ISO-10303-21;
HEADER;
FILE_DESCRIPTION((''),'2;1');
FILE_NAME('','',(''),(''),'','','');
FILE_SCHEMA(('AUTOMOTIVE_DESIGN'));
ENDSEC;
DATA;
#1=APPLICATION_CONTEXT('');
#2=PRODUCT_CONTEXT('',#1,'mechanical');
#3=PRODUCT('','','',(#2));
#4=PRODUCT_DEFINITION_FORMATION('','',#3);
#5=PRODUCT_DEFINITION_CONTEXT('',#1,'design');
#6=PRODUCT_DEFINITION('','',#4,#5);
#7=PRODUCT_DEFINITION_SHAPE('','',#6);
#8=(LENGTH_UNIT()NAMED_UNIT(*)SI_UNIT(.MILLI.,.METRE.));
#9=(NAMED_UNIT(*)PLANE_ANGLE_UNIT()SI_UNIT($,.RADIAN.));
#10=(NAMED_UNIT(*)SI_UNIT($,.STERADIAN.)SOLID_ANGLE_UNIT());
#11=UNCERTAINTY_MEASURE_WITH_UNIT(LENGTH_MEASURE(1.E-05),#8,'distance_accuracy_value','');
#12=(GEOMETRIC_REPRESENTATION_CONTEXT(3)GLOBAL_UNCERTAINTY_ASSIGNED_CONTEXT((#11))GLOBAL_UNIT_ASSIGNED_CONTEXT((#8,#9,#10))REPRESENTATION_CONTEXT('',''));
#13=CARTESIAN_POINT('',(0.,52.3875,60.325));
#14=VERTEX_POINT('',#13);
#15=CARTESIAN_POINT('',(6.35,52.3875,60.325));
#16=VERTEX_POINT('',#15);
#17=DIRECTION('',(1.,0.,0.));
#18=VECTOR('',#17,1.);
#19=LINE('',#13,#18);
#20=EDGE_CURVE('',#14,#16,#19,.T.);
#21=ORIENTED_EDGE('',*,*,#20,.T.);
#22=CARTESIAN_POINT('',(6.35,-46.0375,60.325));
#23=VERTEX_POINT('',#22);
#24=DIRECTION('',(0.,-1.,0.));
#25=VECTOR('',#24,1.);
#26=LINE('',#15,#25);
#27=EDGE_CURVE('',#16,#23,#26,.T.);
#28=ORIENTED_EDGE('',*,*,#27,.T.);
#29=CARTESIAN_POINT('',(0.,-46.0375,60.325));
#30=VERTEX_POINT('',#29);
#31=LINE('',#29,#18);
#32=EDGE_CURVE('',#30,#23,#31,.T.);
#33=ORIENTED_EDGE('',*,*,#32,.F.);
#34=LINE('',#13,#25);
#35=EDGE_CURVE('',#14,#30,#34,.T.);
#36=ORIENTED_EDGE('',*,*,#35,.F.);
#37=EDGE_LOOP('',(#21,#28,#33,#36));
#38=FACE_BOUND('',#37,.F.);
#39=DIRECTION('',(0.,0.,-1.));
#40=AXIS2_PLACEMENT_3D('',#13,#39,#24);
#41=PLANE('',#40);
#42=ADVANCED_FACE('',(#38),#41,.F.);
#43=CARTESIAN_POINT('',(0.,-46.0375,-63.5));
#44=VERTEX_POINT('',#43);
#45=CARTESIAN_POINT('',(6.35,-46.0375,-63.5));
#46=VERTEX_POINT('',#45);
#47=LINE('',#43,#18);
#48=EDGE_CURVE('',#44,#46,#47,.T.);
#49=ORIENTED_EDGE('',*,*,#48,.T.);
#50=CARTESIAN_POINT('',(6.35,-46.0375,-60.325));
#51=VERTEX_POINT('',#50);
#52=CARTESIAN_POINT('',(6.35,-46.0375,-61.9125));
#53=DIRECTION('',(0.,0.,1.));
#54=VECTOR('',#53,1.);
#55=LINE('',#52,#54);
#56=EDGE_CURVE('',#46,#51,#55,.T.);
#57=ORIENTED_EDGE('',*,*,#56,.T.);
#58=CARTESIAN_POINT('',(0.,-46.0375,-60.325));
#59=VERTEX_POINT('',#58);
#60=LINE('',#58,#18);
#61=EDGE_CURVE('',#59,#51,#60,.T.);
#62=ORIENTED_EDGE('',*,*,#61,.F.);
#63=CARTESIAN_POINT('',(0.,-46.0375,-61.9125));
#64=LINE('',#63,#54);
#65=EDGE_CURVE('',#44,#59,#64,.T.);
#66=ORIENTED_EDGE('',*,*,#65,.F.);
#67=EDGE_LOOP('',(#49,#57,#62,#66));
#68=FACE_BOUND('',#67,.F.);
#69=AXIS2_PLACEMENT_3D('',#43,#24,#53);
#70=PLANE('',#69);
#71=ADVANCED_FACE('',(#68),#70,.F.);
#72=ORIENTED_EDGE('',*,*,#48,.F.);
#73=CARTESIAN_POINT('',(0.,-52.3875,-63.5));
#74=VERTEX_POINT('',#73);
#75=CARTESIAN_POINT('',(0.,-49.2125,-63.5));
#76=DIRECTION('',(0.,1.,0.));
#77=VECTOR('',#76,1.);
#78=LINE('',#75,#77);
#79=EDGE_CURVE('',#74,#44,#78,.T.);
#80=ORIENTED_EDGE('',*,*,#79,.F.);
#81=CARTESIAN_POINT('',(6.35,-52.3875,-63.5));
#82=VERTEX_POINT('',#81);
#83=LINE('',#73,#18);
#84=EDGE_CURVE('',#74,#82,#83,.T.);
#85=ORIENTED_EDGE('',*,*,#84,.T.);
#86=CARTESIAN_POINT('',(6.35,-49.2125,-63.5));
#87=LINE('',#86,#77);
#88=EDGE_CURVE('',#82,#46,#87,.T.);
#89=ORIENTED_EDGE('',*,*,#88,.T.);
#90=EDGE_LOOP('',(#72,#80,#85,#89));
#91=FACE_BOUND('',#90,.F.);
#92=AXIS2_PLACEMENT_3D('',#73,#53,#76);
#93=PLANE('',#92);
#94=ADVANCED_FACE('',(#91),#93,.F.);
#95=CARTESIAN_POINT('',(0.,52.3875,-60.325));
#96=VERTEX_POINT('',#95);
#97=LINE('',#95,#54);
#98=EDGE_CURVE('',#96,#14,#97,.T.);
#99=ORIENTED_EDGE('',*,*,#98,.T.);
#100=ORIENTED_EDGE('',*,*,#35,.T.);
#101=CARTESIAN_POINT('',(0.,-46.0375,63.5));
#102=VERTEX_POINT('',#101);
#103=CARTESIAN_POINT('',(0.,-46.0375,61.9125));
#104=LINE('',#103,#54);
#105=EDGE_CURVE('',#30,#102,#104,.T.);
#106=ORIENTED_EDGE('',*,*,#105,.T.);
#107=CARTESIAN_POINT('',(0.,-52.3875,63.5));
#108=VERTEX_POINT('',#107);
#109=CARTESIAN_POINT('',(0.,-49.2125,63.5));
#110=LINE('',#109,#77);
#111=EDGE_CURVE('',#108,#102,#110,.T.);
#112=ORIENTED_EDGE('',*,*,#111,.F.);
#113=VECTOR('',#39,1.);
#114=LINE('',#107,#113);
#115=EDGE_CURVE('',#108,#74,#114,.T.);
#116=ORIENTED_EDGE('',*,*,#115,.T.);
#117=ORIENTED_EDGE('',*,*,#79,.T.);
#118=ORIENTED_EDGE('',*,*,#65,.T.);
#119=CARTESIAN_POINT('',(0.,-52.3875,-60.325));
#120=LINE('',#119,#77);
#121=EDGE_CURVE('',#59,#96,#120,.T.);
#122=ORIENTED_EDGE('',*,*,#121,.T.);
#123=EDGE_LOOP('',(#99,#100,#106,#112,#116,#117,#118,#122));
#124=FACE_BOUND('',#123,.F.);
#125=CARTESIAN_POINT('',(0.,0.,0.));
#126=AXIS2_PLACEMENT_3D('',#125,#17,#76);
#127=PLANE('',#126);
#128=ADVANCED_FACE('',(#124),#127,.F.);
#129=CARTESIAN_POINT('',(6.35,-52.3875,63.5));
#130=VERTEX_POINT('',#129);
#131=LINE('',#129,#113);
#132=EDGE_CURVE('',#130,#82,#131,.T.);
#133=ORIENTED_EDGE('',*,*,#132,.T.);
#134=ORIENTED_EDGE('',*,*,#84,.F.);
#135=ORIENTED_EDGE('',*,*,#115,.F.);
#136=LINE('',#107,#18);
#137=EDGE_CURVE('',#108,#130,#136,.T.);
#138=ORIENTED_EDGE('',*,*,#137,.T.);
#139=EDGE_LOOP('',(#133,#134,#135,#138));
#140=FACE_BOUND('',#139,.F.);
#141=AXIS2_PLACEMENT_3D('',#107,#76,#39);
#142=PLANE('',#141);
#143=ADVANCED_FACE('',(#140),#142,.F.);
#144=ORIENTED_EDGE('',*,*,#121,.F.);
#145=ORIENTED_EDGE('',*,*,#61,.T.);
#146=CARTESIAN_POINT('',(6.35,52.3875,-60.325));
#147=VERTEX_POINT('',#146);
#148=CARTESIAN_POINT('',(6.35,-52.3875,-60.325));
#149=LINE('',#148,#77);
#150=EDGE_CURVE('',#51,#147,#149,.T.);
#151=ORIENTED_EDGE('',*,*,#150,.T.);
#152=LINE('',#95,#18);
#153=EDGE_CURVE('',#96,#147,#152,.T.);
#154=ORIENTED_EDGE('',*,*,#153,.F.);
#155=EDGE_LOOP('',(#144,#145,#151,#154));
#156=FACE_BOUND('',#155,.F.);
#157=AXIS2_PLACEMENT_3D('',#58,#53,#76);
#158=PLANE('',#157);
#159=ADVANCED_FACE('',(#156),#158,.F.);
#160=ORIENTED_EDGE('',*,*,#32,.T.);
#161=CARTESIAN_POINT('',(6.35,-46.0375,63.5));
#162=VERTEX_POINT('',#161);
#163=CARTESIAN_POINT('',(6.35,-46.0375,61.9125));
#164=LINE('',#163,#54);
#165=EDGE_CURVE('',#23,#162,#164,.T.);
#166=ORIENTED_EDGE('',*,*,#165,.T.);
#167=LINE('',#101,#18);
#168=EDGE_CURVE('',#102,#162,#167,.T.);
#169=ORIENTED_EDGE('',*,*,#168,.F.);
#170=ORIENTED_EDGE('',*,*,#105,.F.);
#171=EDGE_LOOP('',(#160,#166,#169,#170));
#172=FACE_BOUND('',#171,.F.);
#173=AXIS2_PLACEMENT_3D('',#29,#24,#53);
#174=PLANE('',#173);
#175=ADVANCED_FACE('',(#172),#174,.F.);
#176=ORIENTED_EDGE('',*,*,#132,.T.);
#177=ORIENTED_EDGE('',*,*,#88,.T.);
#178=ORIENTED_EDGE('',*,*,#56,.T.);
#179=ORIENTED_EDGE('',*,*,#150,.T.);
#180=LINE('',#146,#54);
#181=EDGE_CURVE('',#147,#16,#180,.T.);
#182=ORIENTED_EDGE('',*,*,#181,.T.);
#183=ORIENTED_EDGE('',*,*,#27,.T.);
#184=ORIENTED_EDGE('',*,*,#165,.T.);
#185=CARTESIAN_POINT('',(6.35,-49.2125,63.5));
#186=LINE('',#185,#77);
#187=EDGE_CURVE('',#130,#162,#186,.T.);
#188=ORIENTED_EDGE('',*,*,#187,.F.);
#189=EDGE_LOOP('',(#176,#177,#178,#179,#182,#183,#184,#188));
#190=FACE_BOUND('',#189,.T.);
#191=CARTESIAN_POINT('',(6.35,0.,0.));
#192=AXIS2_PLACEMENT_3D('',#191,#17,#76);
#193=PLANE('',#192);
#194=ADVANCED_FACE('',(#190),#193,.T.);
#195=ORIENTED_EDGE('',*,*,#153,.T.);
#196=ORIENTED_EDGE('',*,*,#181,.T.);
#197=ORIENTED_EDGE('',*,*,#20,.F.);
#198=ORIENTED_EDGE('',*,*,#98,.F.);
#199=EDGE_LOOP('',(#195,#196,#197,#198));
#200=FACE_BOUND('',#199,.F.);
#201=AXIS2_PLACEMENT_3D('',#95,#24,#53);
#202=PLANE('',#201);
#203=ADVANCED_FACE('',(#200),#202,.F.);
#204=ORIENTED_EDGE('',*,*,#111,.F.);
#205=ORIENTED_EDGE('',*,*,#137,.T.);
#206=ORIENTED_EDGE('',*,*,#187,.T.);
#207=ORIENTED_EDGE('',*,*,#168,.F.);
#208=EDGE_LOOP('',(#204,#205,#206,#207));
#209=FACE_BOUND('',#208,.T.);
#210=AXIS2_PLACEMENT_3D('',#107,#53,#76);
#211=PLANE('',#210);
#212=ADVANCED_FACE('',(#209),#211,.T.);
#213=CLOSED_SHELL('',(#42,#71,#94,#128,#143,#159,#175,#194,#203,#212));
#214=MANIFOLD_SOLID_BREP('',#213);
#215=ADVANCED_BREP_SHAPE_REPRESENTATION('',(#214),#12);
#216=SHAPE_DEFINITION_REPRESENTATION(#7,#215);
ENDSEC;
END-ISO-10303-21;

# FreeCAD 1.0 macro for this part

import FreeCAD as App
import Part
import Sketcher

V = App.Vector
Q = App.Units.Quantity

doc = App.newDocument("Part")
params = doc.addObject("Spreadsheet::Sheet", "Params")
for row, (alias, value) in enumerate([
    ("sketch1_height", "5 in"),
    ("sketch1_width", "0.25 in"),
    ("sketch1_height2", "4.75 in"),
    ("sketch1_width2", "3.875 in"),
    ("pad1_length", "0.25 in"),
], start=1):
    params.set(f"A{row}", alias)
    params.set(f"B{row}", "=" + value)
    params.setAlias(f"B{row}", alias)

body = doc.addObject("PartDesign::Body", "Body")

# Sketch on YZ plane
sketch1 = body.newObject("Sketcher::SketchObject", "Sketch")
sketch1.AttachmentSupport = (doc.getObject("YZ_Plane"), [""])
sketch1.MapMode = "FlatFace"
sketch1.addGeometry([
    Part.LineSegment(V(52.4, -60.3, 0), V(52.4, 60.3, 0)),  # 0
    Part.LineSegment(V(52.4, 60.3, 0), V(-46, 60.3, 0)),  # 1
    Part.LineSegment(V(-46, 60.3, 0), V(-46, 63.5, 0)),  # 2
    Part.LineSegment(V(-46, 63.5, 0), V(-52.4, 63.5, 0)),  # 3
    Part.LineSegment(V(-52.4, 63.5, 0), V(-52.4, -63.5, 0)),  # 4
    Part.LineSegment(V(-52.4, -63.5, 0), V(-46, -63.5, 0)),  # 5
    Part.LineSegment(V(-46, -63.5, 0), V(-46, -60.3, 0)),  # 6
    Part.LineSegment(V(-46, -60.3, 0), V(52.4, -60.3, 0)),  # 7
], False)
sketch1.addConstraint([
    Sketcher.Constraint("Coincident", 0, 2, 1, 1),
    Sketcher.Constraint("Coincident", 1, 2, 2, 1),
    Sketcher.Constraint("Coincident", 2, 2, 3, 1),
    Sketcher.Constraint("Coincident", 3, 2, 4, 1),
    Sketcher.Constraint("Coincident", 4, 2, 5, 1),
    Sketcher.Constraint("Coincident", 5, 2, 6, 1),
    Sketcher.Constraint("Coincident", 6, 2, 7, 1),
    Sketcher.Constraint("Coincident", 7, 2, 0, 1),
    Sketcher.Constraint("Vertical", 0),
    Sketcher.Constraint("Horizontal", 1),
    Sketcher.Constraint("Vertical", 2),
    Sketcher.Constraint("Horizontal", 3),
    Sketcher.Constraint("Vertical", 4),
    Sketcher.Constraint("Horizontal", 5),
    Sketcher.Constraint("Vertical", 6),
    Sketcher.Constraint("Horizontal", 7),
    Sketcher.Constraint("Symmetric", 2, 2, 5, 2, -1),
    Sketcher.Constraint("Equal", 2, 6),
    Sketcher.Constraint("DistanceY", 4, 2, 4, 1, Q("5 in")),
    Sketcher.Constraint("DistanceX", 3, 2, 3, 1, Q("0.25 in")),
    Sketcher.Constraint("DistanceY", 0, 1, 0, 2, Q("4.75 in")),
    Sketcher.Constraint("DistanceX", 1, 2, 1, 1, Q("3.875 in")),
    Sketcher.Constraint("DistanceX", -1, 1, 0, 2, Q("2.0625 in")),
])
sketch1.setExpression("Constraints[18]", "Params.sketch1_height")
sketch1.setExpression("Constraints[19]", "Params.sketch1_width")
sketch1.setExpression("Constraints[20]", "Params.sketch1_height2")
sketch1.setExpression("Constraints[21]", "Params.sketch1_width2")
pad1 = body.newObject("PartDesign::Pad", "Pad")
pad1.Profile = sketch1
pad1.setExpression("Length", "Params.pad1_length")

doc.recompute()
